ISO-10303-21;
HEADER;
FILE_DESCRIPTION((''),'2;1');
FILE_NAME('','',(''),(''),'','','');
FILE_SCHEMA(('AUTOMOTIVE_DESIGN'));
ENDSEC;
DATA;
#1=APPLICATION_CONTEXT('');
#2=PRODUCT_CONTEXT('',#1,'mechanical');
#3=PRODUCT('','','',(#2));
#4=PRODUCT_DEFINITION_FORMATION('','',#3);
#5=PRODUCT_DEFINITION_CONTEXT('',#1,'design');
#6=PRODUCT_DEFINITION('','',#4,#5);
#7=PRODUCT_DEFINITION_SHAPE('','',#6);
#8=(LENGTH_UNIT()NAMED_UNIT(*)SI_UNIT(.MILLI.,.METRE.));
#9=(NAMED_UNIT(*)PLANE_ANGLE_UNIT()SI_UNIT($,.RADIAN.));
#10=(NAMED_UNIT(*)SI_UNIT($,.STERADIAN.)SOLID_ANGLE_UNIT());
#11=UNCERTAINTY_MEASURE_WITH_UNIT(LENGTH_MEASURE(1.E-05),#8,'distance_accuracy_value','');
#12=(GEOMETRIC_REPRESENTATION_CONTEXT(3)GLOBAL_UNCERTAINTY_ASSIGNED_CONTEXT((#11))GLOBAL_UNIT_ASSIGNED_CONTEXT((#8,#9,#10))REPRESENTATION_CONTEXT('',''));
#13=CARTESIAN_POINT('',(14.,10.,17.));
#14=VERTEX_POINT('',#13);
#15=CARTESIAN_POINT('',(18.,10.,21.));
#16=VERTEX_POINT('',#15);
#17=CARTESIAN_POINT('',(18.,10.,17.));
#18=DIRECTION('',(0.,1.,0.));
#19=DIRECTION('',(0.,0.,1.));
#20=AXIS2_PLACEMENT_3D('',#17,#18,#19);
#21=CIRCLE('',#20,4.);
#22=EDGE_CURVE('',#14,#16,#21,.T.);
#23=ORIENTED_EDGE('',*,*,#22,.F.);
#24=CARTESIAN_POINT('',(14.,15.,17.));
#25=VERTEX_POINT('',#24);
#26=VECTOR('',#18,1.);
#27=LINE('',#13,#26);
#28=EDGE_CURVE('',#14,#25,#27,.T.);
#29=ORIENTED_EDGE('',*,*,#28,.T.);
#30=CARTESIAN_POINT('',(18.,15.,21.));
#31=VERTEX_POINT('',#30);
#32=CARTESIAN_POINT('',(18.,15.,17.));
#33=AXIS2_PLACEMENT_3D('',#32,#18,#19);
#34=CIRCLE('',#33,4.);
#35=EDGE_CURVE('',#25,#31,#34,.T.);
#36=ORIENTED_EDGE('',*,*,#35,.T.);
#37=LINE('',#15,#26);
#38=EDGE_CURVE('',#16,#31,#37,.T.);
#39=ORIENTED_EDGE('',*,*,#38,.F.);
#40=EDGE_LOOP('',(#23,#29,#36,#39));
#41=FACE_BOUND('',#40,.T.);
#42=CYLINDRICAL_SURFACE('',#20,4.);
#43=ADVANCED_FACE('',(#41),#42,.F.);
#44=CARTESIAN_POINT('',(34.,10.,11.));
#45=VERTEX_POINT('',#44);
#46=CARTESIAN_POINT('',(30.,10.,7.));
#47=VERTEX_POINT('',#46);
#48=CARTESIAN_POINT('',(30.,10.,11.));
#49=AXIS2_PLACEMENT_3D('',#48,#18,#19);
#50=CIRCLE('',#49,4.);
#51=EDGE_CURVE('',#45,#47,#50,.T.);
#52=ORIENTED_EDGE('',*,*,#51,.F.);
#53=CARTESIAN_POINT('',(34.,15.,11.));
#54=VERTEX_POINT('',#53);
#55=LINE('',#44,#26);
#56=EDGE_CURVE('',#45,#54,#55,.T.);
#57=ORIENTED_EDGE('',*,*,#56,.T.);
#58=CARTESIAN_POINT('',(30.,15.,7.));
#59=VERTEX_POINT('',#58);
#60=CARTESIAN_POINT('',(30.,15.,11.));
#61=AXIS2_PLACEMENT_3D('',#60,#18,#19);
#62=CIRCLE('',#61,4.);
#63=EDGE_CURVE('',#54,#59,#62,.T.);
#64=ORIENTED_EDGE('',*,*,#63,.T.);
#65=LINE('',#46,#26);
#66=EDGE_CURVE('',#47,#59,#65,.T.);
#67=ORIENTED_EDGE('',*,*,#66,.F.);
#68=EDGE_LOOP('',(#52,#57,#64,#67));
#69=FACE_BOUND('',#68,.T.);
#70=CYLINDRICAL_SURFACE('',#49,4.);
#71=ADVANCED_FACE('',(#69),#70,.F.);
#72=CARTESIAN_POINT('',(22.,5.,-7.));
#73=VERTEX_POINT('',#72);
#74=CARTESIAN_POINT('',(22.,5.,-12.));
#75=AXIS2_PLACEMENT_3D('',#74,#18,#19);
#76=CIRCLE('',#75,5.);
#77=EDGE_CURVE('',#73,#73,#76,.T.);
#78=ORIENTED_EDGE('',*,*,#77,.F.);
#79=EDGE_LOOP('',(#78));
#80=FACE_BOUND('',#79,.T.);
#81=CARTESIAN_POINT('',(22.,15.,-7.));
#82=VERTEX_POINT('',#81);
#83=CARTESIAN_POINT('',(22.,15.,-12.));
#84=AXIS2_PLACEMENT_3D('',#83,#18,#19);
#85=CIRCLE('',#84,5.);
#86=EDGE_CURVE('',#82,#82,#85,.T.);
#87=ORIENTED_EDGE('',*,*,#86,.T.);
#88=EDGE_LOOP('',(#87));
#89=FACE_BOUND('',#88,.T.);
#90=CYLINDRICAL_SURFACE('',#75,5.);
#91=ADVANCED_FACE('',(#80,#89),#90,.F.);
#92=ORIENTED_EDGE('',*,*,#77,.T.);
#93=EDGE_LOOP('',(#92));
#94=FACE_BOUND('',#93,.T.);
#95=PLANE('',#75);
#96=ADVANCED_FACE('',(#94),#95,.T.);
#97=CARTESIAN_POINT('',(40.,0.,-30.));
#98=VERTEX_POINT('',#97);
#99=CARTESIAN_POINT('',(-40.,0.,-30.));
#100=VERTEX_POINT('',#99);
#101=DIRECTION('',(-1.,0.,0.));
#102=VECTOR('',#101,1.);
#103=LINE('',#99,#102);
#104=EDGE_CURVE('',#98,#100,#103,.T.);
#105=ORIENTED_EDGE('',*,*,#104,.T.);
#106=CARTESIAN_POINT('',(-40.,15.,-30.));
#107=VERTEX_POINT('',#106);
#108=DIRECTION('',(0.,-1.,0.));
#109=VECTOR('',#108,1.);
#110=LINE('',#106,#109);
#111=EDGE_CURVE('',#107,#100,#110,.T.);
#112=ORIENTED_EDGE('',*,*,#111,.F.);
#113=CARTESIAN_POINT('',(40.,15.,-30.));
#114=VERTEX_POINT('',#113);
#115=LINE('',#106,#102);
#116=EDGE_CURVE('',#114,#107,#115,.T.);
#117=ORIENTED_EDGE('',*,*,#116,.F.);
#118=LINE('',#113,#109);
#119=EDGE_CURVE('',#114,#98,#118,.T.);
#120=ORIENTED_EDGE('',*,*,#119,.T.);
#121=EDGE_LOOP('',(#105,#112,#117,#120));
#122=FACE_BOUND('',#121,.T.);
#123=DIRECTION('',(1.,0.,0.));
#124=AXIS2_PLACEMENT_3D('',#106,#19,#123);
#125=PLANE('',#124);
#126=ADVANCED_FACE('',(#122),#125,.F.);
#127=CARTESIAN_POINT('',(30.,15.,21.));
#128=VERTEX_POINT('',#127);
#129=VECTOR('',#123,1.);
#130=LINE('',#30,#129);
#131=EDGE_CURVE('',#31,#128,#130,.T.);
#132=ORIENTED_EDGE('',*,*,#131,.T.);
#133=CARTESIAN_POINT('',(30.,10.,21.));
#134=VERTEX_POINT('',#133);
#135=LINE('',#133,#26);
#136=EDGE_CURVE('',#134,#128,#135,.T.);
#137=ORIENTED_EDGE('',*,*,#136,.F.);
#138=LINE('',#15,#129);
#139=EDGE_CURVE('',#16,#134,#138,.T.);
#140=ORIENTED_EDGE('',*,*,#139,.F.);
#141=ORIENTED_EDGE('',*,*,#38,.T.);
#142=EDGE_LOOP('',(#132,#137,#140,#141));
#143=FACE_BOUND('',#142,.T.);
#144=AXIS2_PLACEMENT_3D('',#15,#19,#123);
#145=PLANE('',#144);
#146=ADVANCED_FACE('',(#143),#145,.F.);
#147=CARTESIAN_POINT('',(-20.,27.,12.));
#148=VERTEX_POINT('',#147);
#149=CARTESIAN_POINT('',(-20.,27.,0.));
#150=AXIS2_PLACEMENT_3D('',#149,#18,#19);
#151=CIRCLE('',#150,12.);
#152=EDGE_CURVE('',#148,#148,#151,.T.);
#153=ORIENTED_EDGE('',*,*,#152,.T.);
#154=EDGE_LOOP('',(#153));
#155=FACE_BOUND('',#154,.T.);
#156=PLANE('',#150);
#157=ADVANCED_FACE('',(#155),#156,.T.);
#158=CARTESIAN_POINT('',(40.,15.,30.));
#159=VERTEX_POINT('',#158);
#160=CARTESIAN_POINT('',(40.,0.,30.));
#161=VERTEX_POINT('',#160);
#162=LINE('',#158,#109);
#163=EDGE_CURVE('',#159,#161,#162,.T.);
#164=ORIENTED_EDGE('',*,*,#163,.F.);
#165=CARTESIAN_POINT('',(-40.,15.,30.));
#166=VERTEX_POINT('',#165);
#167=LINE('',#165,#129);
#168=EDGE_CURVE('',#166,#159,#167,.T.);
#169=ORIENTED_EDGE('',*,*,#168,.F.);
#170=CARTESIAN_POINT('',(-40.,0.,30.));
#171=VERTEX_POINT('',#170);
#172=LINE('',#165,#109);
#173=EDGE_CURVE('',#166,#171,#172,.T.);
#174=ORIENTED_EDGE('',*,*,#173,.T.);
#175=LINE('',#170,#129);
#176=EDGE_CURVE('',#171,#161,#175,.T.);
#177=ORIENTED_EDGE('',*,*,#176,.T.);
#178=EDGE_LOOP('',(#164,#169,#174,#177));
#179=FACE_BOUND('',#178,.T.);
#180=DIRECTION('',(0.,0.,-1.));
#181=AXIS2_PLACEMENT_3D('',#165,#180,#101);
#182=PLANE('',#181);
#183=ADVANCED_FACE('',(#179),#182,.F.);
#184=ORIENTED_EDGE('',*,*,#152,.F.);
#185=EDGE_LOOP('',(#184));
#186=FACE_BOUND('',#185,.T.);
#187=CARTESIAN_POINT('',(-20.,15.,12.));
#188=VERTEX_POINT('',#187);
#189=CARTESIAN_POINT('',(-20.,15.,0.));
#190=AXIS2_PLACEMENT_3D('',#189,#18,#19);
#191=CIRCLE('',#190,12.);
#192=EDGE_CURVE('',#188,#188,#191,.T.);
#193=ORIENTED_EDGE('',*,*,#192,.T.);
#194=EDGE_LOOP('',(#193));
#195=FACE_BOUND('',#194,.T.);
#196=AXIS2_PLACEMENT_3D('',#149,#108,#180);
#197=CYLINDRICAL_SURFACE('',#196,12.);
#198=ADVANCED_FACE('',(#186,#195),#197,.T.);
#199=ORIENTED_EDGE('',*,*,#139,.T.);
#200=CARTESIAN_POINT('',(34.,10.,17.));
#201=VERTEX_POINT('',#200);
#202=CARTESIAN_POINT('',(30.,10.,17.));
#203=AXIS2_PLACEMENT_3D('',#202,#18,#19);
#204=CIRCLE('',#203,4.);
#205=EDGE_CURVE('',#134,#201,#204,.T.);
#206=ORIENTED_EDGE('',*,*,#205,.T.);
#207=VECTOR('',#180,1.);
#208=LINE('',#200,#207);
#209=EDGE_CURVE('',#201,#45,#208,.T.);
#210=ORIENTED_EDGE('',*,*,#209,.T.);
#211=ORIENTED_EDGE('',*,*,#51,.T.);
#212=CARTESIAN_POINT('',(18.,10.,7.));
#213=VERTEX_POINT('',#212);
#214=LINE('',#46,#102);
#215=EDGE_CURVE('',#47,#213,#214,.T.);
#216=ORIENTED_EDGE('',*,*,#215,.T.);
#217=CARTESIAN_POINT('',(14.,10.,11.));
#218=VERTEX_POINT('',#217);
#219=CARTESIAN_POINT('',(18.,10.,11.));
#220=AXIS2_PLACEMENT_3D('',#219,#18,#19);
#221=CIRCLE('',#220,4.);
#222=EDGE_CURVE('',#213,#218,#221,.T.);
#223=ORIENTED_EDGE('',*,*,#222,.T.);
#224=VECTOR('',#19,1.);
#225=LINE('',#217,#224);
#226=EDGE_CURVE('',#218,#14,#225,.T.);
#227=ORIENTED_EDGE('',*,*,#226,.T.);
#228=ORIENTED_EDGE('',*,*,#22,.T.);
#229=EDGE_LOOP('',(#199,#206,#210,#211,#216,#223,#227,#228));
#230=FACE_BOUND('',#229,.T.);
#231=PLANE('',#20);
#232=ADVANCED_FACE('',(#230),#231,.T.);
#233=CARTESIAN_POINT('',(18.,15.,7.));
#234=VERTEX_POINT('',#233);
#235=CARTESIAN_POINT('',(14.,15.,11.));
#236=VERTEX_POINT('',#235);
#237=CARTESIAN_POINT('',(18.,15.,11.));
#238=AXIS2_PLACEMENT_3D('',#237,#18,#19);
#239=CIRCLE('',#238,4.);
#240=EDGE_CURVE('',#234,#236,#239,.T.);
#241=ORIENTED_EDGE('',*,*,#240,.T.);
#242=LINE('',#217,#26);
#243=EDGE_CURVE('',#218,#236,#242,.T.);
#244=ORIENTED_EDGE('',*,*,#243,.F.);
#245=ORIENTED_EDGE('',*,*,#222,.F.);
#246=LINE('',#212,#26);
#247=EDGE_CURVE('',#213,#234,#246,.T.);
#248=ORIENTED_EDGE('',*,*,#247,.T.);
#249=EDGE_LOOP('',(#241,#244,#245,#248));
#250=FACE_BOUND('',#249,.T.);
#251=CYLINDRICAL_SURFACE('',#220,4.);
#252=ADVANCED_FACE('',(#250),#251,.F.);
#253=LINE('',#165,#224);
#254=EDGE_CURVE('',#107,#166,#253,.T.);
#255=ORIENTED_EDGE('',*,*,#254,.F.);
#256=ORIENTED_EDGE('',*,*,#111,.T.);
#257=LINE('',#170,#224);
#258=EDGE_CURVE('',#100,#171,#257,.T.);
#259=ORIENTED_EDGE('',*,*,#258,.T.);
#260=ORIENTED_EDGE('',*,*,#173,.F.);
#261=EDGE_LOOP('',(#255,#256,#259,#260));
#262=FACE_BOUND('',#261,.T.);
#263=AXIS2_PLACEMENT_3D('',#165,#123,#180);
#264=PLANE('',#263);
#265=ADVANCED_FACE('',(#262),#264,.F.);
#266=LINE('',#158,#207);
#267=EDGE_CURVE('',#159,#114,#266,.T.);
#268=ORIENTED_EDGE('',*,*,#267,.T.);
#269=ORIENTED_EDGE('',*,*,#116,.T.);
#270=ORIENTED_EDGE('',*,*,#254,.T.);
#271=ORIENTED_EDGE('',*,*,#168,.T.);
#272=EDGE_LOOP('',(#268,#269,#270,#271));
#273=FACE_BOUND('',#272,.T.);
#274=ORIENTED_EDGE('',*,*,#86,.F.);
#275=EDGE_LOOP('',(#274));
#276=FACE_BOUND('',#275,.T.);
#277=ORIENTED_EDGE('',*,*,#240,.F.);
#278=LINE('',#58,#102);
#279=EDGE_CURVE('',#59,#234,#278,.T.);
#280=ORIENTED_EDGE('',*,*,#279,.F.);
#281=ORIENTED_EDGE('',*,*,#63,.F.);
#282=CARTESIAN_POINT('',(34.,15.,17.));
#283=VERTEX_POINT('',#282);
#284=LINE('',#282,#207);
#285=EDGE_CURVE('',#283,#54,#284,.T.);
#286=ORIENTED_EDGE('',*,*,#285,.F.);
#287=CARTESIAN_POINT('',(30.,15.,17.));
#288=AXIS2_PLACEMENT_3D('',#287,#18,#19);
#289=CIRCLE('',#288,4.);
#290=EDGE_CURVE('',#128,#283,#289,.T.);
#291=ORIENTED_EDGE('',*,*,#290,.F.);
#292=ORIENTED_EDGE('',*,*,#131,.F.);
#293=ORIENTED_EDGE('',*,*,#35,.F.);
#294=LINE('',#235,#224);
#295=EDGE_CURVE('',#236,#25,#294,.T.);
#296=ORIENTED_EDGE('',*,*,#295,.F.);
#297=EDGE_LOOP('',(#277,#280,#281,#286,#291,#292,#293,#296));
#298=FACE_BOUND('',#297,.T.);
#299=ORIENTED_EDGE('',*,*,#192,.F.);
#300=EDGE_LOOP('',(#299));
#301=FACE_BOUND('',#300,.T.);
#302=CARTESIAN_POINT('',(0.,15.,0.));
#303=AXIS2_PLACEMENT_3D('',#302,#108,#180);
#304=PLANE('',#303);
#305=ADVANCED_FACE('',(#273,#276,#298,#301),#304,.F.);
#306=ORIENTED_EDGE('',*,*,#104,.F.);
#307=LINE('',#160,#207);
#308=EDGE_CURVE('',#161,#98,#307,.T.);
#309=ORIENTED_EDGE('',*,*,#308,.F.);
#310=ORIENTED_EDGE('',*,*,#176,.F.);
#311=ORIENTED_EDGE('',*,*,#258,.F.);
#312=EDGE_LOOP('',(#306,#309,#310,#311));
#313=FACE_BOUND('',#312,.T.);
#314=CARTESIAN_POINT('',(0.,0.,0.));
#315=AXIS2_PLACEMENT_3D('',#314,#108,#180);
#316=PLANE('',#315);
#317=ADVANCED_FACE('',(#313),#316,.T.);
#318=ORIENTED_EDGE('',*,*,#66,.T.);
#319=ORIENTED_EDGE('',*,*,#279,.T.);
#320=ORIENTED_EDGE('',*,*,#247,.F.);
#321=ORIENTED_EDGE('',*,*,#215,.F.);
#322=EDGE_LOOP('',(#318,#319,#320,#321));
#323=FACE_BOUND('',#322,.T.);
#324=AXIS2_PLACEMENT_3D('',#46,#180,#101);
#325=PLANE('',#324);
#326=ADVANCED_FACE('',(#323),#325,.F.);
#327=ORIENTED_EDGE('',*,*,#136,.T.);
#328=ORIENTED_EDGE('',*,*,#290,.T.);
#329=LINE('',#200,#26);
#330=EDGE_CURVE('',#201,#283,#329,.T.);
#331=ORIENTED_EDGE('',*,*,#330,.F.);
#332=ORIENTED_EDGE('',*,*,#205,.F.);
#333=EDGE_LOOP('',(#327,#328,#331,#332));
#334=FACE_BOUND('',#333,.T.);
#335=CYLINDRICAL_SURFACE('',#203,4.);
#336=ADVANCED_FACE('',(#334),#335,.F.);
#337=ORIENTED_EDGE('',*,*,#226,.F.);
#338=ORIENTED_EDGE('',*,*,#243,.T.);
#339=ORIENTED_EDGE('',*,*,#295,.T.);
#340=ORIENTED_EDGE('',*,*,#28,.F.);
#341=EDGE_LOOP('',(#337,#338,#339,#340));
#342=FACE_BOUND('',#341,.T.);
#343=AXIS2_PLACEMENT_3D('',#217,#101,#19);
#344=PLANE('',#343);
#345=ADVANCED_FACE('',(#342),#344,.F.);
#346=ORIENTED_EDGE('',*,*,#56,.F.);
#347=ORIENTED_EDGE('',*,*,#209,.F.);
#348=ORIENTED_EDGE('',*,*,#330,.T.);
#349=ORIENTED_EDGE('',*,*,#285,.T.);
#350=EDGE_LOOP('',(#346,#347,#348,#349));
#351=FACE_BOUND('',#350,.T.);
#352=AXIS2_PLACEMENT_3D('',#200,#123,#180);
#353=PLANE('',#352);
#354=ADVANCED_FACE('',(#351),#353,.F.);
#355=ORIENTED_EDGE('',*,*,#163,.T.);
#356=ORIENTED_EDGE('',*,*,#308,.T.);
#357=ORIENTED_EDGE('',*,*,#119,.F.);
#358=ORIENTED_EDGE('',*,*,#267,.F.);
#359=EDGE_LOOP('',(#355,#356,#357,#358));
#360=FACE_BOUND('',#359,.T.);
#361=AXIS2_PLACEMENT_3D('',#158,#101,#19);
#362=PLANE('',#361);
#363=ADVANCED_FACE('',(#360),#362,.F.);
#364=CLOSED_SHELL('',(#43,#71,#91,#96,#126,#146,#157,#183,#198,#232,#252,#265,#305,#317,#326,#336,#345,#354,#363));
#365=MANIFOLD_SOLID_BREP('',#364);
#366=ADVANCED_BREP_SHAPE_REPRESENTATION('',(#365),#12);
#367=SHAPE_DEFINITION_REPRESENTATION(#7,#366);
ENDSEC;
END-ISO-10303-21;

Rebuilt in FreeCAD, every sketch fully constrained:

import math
import FreeCAD as App
import Part
import Sketcher

V = App.Vector
Q = App.Units.Quantity

doc = App.newDocument("Part")
params = doc.addObject("Spreadsheet::Sheet", "Params")
for row, (alias, value) in enumerate([
    ("sketch1_width", "80 mm"),
    ("sketch1_height", "60 mm"),
    ("pad1_length", "15 mm"),
    ("sketch2_diameter", "24 mm"),
    ("pad2_length", "12 mm"),
    ("sketch3_diameter", "10 mm"),
    ("pocket1_length", "10 mm"),
    ("sketch4_radius", "4 mm"),
    ("sketch4_width", "12 mm"),
    ("sketch4_height", "6 mm"),
    ("pocket2_length", "5 mm"),
], start=1):
    params.set(f"A{row}", alias)
    params.set(f"B{row}", "=" + value)
    params.setAlias(f"B{row}", alias)

body = doc.addObject("PartDesign::Body", "Body")

sketch1 = doc.addObject("Sketcher::SketchObject", "Sketch")
body.addObject(sketch1)
sketch1.AttachmentSupport = (doc.XZ_Plane, [""])
sketch1.MapMode = "FlatFace"
sketch1.addGeometry(Part.LineSegment(V(-40, -30, 0), V(-40, 30, 0)), False)
sketch1.addGeometry(Part.LineSegment(V(-40, 30, 0), V(40, 30, 0)), False)
sketch1.addGeometry(Part.LineSegment(V(40, 30, 0), V(40, -30, 0)), False)
sketch1.addGeometry(Part.LineSegment(V(40, -30, 0), V(-40, -30, 0)), False)
sketch1.addConstraint(Sketcher.Constraint("Coincident", 0, 2, 1, 1))
sketch1.addConstraint(Sketcher.Constraint("Coincident", 1, 2, 2, 1))
sketch1.addConstraint(Sketcher.Constraint("Coincident", 2, 2, 3, 1))
sketch1.addConstraint(Sketcher.Constraint("Coincident", 3, 2, 0, 1))
sketch1.addConstraint(Sketcher.Constraint("Vertical", 0))
sketch1.addConstraint(Sketcher.Constraint("Horizontal", 1))
sketch1.addConstraint(Sketcher.Constraint("Vertical", 2))
sketch1.addConstraint(Sketcher.Constraint("Horizontal", 3))
sketch1.addConstraint(Sketcher.Constraint("Symmetric", 0, 2, 2, 2, -1, 1))
sketch1.addConstraint(Sketcher.Constraint("DistanceX", 1, 1, 1, 2, Q("80 mm")))
sketch1.addConstraint(Sketcher.Constraint("DistanceY", 0, 1, 0, 2, Q("60 mm")))
sketch1.setExpression("Constraints[9]", "Params.sketch1_width")
sketch1.setExpression("Constraints[10]", "Params.sketch1_height")
pad1 = doc.addObject("PartDesign::Pad", "Pad")
body.addObject(pad1)
pad1.Profile = sketch1
pad1.setExpression("Length", "Params.pad1_length")
pad1.Reversed = True

sketch2 = doc.addObject("Sketcher::SketchObject", "Sketch001")
body.addObject(sketch2)
sketch2.AttachmentSupport = (doc.XZ_Plane, [""])
sketch2.MapMode = "FlatFace"
sketch2.AttachmentOffset = App.Placement(V(0, 0, -15), App.Rotation())
sketch2.addGeometry(Part.Circle(V(-20, 0, 0), V(0, 0, 1), 12), False)
sketch2.addConstraint(Sketcher.Constraint("PointOnObject", 0, 3, -1))
sketch2.addConstraint(Sketcher.Constraint("Diameter", 0, Q("24 mm")))
sketch2.addConstraint(Sketcher.Constraint("DistanceX", 0, 3, -1, 1, Q("20 mm")))
sketch2.setExpression("Constraints[1]", "Params.sketch2_diameter")
pad2 = doc.addObject("PartDesign::Pad", "Pad001")
body.addObject(pad2)
pad2.Profile = sketch2
pad2.setExpression("Length", "Params.pad2_length")
pad2.Reversed = True

sketch3 = doc.addObject("Sketcher::SketchObject", "Sketch002")
body.addObject(sketch3)
sketch3.AttachmentSupport = (doc.XZ_Plane, [""])
sketch3.MapMode = "FlatFace"
sketch3.AttachmentOffset = App.Placement(V(0, 0, -15), App.Rotation())
sketch3.addGeometry(Part.Circle(V(22, -12, 0), V(0, 0, 1), 5), False)
sketch3.addConstraint(Sketcher.Constraint("Diameter", 0, Q("10 mm")))
sketch3.addConstraint(Sketcher.Constraint("DistanceX", -1, 1, 0, 3, Q("22 mm")))
sketch3.addConstraint(Sketcher.Constraint("DistanceY", 0, 3, -1, 1, Q("12 mm")))
sketch3.setExpression("Constraints[0]", "Params.sketch3_diameter")
pocket1 = doc.addObject("PartDesign::Pocket", "Pocket")
body.addObject(pocket1)
pocket1.Profile = sketch3
pocket1.setExpression("Length", "Params.pocket1_length")
pocket1.Reversed = True

sketch4 = doc.addObject("Sketcher::SketchObject", "Sketch003")
body.addObject(sketch4)
sketch4.AttachmentSupport = (doc.XZ_Plane, [""])
sketch4.MapMode = "FlatFace"
sketch4.AttachmentOffset = App.Placement(V(0, 0, -15), App.Rotation())
sketch4.addGeometry(Part.LineSegment(V(18, 21, 0), V(30, 21, 0)), False)
sketch4.addGeometry(Part.ArcOfCircle(Part.Circle(V(30, 17, 0), V(0, 0, 1), 4), math.radians(0), math.radians(90)), False)
sketch4.addGeometry(Part.LineSegment(V(34, 17, 0), V(34, 11, 0)), False)
sketch4.addGeometry(Part.ArcOfCircle(Part.Circle(V(30, 11, 0), V(0, 0, 1), 4), math.radians(-90), math.radians(0)), False)
sketch4.addGeometry(Part.LineSegment(V(30, 7, 0), V(18, 7, 0)), False)
sketch4.addGeometry(Part.ArcOfCircle(Part.Circle(V(18, 11, 0), V(0, 0, 1), 4), math.radians(180), math.radians(270)), False)
sketch4.addGeometry(Part.LineSegment(V(14, 11, 0), V(14, 17, 0)), False)
sketch4.addGeometry(Part.ArcOfCircle(Part.Circle(V(18, 17, 0), V(0, 0, 1), 4), math.radians(90), math.radians(180)), False)
sketch4.addConstraint(Sketcher.Constraint("Tangent", 0, 2, 1, 2))
sketch4.addConstraint(Sketcher.Constraint("Tangent", 1, 1, 2, 1))
sketch4.addConstraint(Sketcher.Constraint("Tangent", 2, 2, 3, 2))
sketch4.addConstraint(Sketcher.Constraint("Tangent", 3, 1, 4, 1))
sketch4.addConstraint(Sketcher.Constraint("Tangent", 4, 2, 5, 2))
sketch4.addConstraint(Sketcher.Constraint("Tangent", 5, 1, 6, 1))
sketch4.addConstraint(Sketcher.Constraint("Tangent", 6, 2, 7, 2))
sketch4.addConstraint(Sketcher.Constraint("Tangent", 7, 1, 0, 1))
sketch4.addConstraint(Sketcher.Constraint("Horizontal", 0))
sketch4.addConstraint(Sketcher.Constraint("Vertical", 2))
sketch4.addConstraint(Sketcher.Constraint("Horizontal", 4))
sketch4.addConstraint(Sketcher.Constraint("Vertical", 6))
sketch4.addConstraint(Sketcher.Constraint("Equal", 1, 3))
sketch4.addConstraint(Sketcher.Constraint("Equal", 3, 5))
sketch4.addConstraint(Sketcher.Constraint("Equal", 5, 7))
sketch4.addConstraint(Sketcher.Constraint("Radius", 1, Q("4 mm")))
sketch4.addConstraint(Sketcher.Constraint("DistanceX", 0, 1, 0, 2, Q("12 mm")))
sketch4.addConstraint(Sketcher.Constraint("DistanceY", 2, 2, 2, 1, Q("6 mm")))
sketch4.addConstraint(Sketcher.Constraint("DistanceX", -1, 1, 1, 3, Q("30 mm")))
sketch4.addConstraint(Sketcher.Constraint("DistanceY", -1, 1, 1, 3, Q("17 mm")))
sketch4.setExpression("Constraints[15]", "Params.sketch4_radius")
sketch4.setExpression("Constraints[16]", "Params.sketch4_width")
sketch4.setExpression("Constraints[17]", "Params.sketch4_height")
pocket2 = doc.addObject("PartDesign::Pocket", "Pocket001")
body.addObject(pocket2)
pocket2.Profile = sketch4
pocket2.setExpression("Length", "Params.pocket2_length")
pocket2.Reversed = True

doc.recompute()
